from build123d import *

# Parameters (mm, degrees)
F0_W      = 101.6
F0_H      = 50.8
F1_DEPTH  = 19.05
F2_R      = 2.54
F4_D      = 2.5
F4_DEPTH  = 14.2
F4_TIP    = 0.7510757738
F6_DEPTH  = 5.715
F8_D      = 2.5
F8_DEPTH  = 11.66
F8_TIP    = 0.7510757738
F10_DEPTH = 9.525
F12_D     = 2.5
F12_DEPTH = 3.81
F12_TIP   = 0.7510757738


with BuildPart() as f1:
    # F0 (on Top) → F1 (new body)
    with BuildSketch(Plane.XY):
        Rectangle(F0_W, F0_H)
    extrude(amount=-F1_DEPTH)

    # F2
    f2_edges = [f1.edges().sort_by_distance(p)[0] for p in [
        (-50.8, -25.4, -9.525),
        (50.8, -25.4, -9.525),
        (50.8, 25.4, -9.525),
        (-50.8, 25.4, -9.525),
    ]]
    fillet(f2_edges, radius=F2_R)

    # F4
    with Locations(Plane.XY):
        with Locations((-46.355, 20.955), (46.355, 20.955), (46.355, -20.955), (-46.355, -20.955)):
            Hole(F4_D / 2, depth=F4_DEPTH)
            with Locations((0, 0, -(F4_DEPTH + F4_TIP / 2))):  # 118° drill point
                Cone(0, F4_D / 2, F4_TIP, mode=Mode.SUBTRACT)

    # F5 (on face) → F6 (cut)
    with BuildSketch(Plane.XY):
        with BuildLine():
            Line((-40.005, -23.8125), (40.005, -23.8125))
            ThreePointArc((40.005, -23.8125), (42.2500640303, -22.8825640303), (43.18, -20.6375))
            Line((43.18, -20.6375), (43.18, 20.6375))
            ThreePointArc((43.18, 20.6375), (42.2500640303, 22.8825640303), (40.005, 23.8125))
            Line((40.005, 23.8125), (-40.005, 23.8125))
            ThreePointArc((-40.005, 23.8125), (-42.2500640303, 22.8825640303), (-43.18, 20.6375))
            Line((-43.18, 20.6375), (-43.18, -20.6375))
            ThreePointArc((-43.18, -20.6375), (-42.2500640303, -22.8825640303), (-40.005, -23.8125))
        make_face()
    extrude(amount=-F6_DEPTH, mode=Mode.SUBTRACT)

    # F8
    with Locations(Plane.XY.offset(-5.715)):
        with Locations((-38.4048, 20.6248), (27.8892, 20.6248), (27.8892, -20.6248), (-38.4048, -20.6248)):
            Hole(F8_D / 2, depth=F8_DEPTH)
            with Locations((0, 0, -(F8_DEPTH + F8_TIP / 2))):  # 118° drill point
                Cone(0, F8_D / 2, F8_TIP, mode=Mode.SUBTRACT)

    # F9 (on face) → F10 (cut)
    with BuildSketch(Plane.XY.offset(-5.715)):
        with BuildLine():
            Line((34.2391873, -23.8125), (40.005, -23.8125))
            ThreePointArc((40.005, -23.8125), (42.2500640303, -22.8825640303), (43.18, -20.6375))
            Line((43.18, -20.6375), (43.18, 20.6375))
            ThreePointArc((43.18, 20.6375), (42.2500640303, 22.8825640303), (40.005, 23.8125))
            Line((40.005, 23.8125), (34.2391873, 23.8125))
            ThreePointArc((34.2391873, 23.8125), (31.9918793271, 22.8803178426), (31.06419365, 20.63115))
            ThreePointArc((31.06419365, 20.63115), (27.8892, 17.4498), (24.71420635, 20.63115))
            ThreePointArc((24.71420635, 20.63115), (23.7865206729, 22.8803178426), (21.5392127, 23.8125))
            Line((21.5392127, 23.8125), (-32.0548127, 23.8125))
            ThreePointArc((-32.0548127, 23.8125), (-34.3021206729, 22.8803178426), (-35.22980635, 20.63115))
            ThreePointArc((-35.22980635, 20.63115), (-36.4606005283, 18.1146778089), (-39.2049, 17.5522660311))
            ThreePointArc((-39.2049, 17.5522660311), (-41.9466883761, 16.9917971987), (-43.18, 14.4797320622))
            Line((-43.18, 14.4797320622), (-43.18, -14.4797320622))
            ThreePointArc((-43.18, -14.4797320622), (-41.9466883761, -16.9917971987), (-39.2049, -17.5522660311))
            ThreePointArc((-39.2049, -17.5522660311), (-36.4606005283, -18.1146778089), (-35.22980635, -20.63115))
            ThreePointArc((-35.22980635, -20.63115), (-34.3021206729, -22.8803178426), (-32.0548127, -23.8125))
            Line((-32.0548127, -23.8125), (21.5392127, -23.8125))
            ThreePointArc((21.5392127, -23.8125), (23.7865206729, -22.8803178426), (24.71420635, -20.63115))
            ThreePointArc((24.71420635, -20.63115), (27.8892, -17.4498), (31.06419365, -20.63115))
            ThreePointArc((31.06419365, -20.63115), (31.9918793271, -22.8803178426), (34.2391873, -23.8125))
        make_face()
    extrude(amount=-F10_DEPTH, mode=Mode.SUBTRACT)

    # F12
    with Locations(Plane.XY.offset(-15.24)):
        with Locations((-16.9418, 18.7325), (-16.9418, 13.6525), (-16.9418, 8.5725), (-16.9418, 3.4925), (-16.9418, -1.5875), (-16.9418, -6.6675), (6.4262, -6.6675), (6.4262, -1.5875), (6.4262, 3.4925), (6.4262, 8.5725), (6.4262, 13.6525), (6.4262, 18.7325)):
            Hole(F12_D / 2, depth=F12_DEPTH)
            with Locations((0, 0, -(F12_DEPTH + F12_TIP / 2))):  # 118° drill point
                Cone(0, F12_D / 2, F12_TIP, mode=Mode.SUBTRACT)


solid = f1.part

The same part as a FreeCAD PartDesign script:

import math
import FreeCAD as App
import Part
import Sketcher

V = App.Vector
Q = App.Units.Quantity


def edges_at(feature, points):
    """Names of the edges that pass closest to the given points."""
    edges = feature.Shape.Edges
    near = lambda p: min(range(len(edges)), key=lambda i: edges[i].distToShape(Part.Vertex(*p))[0])
    return sorted({f"Edge{near(p) + 1}" for p in points})


def add_polygon(sketch, points):
    """Adds a closed chain of lines whose ends are joined by coincident constraints."""
    first, n = sketch.GeometryCount, len(points)
    for a, b in zip(points, points[1:] + points[:1]):
        sketch.addGeometry(Part.LineSegment(App.Vector(*a, 0), App.Vector(*b, 0)), False)
    for i in range(n):
        sketch.addConstraint(Sketcher.Constraint("Coincident", first + i, 2, first + (i + 1) % n, 1))

doc = App.newDocument("Part")
body = doc.addObject("PartDesign::Body", "Body")

# Sketch on XY plane
sketch1 = body.newObject("Sketcher::SketchObject", "Sketch")
sketch1.AttachmentSupport = (doc.getObject("XY_Plane"), [""])
sketch1.MapMode = "FlatFace"
add_polygon(sketch1, [(-50.8, 25.4), (-50.8, -25.4), (50.8, -25.4), (50.8, 25.4)])  # lines 0-3
sketch1.addConstraint(Sketcher.Constraint("Vertical", 0))
sketch1.addConstraint(Sketcher.Constraint("Horizontal", 1))
sketch1.addConstraint(Sketcher.Constraint("Vertical", 2))
sketch1.addConstraint(Sketcher.Constraint("Horizontal", 3))
sketch1.addConstraint(Sketcher.Constraint("Symmetric", 0, 2, 2, 2, -1, 1))
sketch1.addConstraint(Sketcher.Constraint("DistanceX", 1, 1, 1, 2, Q("4 in")))
sketch1.addConstraint(Sketcher.Constraint("DistanceY", 0, 2, 0, 1, Q("2 in")))
pad1 = body.newObject("PartDesign::Pad", "Pad")
pad1.Profile = sketch1
pad1.Length = Q("0.75 in")
pad1.Reversed = True
doc.recompute()

fillet = body.newObject("PartDesign::Fillet", "Fillet")
fillet.Base = (pad1, edges_at(pad1, [
    (-50.8, -25.4, -9.525),
    (50.8, -25.4, -9.525),
    (50.8, 25.4, -9.525),
    (-50.8, 25.4, -9.525),
]))
fillet.Radius = Q("0.1 in")

# Sketch on XY plane
sketch2 = body.newObject("Sketcher::SketchObject", "Sketch001")
sketch2.AttachmentSupport = (doc.getObject("XY_Plane"), [""])
sketch2.MapMode = "FlatFace"
sketch2.addGeometry(Part.Circle(V(-46.355, 20.955, 0), V(0, 0, 1), 1.25), False)
sketch2.addGeometry(Part.Circle(V(46.355, 20.955, 0), V(0, 0, 1), 1.25), False)
sketch2.addGeometry(Part.Circle(V(46.355, -20.955, 0), V(0, 0, 1), 1.25), False)
sketch2.addGeometry(Part.Circle(V(-46.355, -20.955, 0), V(0, 0, 1), 1.25), False)
sketch2.addConstraint(Sketcher.Constraint("Equal", 0, 1))
sketch2.addConstraint(Sketcher.Constraint("Equal", 1, 2))
sketch2.addConstraint(Sketcher.Constraint("Equal", 2, 3))
sketch2.addConstraint(Sketcher.Constraint("Symmetric", 0, 3, 2, 3, -1, 1))
sketch2.addConstraint(Sketcher.Constraint("Symmetric", 1, 3, 3, 3, -1, 1))
sketch2.addConstraint(Sketcher.Constraint("Symmetric", 0, 3, 1, 3, -2))
sketch2.addConstraint(Sketcher.Constraint("Diameter", 0, 2.5))
sketch2.addConstraint(Sketcher.Constraint("DistanceX", 0, 3, 1, 3, Q("3.65 in")))
sketch2.addConstraint(Sketcher.Constraint("DistanceY", 2, 3, 1, 3, Q("1.65 in")))
doc.recompute()
hole = body.newObject("PartDesign::Hole", "Hole")
hole.Profile = sketch2
hole.ThreadType = "None"
hole.Diameter = 2.5
hole.DepthType = "Dimension"
hole.Depth = 14.2
hole.DrillPoint = "Angled"
hole.DrillPointAngle = 118

# Sketch on XY plane
sketch3 = body.newObject("Sketcher::SketchObject", "Sketch002")
sketch3.AttachmentSupport = (doc.getObject("XY_Plane"), [""])
sketch3.MapMode = "FlatFace"
sketch3.addGeometry(Part.LineSegment(V(-40.005, -23.8125, 0), V(40.005, -23.8125, 0)), False)
sketch3.addGeometry(Part.ArcOfCircle(Part.Circle(V(40.005, -20.6375, 0), V(0, 0, 1), 3.175), math.radians(-90), math.radians(0)), False)
sketch3.addGeometry(Part.LineSegment(V(43.18, -20.6375, 0), V(43.18, 20.6375, 0)), False)
sketch3.addGeometry(Part.ArcOfCircle(Part.Circle(V(40.005, 20.6375, 0), V(0, 0, 1), 3.175), math.radians(0), math.radians(90)), False)
sketch3.addGeometry(Part.LineSegment(V(40.005, 23.8125, 0), V(-40.005, 23.8125, 0)), False)
sketch3.addGeometry(Part.ArcOfCircle(Part.Circle(V(-40.005, 20.6375, 0), V(0, 0, 1), 3.175), math.radians(90), math.radians(180)), False)
sketch3.addGeometry(Part.LineSegment(V(-43.18, 20.6375, 0), V(-43.18, -20.6375, 0)), False)
sketch3.addGeometry(Part.ArcOfCircle(Part.Circle(V(-40.005, -20.6375, 0), V(0, 0, 1), 3.175), math.radians(180), math.radians(270)), False)
sketch3.addConstraint(Sketcher.Constraint("Tangent", 0, 2, 1, 1))
sketch3.addConstraint(Sketcher.Constraint("Tangent", 1, 2, 2, 1))
sketch3.addConstraint(Sketcher.Constraint("Tangent", 2, 2, 3, 1))
sketch3.addConstraint(Sketcher.Constraint("Tangent", 3, 2, 4, 1))
sketch3.addConstraint(Sketcher.Constraint("Tangent", 4, 2, 5, 1))
sketch3.addConstraint(Sketcher.Constraint("Tangent", 5, 2, 6, 1))
sketch3.addConstraint(Sketcher.Constraint("Tangent", 6, 2, 7, 1))
sketch3.addConstraint(Sketcher.Constraint("Tangent", 7, 2, 0, 1))
sketch3.addConstraint(Sketcher.Constraint("Horizontal", 0))
sketch3.addConstraint(Sketcher.Constraint("Vertical", 2))
sketch3.addConstraint(Sketcher.Constraint("Horizontal", 4))
sketch3.addConstraint(Sketcher.Constraint("Vertical", 6))
sketch3.addConstraint(Sketcher.Constraint("Equal", 1, 3))
sketch3.addConstraint(Sketcher.Constraint("Equal", 3, 5))
sketch3.addConstraint(Sketcher.Constraint("Equal", 5, 7))
sketch3.addConstraint(Sketcher.Constraint("Symmetric", 1, 3, 5, 3, -1, 1))
sketch3.addConstraint(Sketcher.Constraint("Radius", 1, Q("0.125 in")))
sketch3.addConstraint(Sketcher.Constraint("DistanceX", 0, 1, 0, 2, Q("3.15 in")))
sketch3.addConstraint(Sketcher.Constraint("DistanceY", 2, 1, 2, 2, Q("1.625 in")))
pocket1 = body.newObject("PartDesign::Pocket", "Pocket")
pocket1.Profile = sketch3
pocket1.Length = Q("0.225 in")

# Sketch on XY plane
sketch4 = body.newObject("Sketcher::SketchObject", "Sketch003")
sketch4.AttachmentSupport = (doc.getObject("XY_Plane"), [""])
sketch4.MapMode = "FlatFace"
sketch4.AttachmentOffset = App.Placement(V(0, 0, -0.225 * 25.4), App.Rotation())
sketch4.addGeometry(Part.Circle(V(-38.4048, 20.6248, 0), V(0, 0, 1), 1.25), False)
sketch4.addGeometry(Part.Circle(V(27.8892, 20.6248, 0), V(0, 0, 1), 1.25), False)
sketch4.addGeometry(Part.Circle(V(27.8892, -20.6248, 0), V(0, 0, 1), 1.25), False)
sketch4.addGeometry(Part.Circle(V(-38.4048, -20.6248, 0), V(0, 0, 1), 1.25), False)
sketch4.addConstraint(Sketcher.Constraint("Equal", 0, 1))
sketch4.addConstraint(Sketcher.Constraint("Equal", 1, 2))
sketch4.addConstraint(Sketcher.Constraint("Equal", 2, 3))
sketch4.addConstraint(Sketcher.Constraint("Symmetric", 1, 3, 2, 3, -1))
sketch4.addConstraint(Sketcher.Constraint("Symmetric", 0, 3, 3, 3, -1))
sketch4.addConstraint(Sketcher.Constraint("Horizontal", 0, 3, 1, 3))
sketch4.addConstraint(Sketcher.Constraint("Diameter", 0, 2.5))
sketch4.addConstraint(Sketcher.Constraint("DistanceX", 0, 3, 1, 3, Q("2.61 in")))
sketch4.addConstraint(Sketcher.Constraint("DistanceX", 0, 3, -1, 1, Q("1.512 in")))
sketch4.addConstraint(Sketcher.Constraint("DistanceY", -1, 1, 0, 3, Q("0.812 in")))
doc.recompute()
hole2 = body.newObject("PartDesign::Hole", "Hole001")
hole2.Profile = sketch4
hole2.ThreadType = "None"
hole2.Diameter = 2.5
hole2.DepthType = "Dimension"
hole2.Depth = 11.66
hole2.DrillPoint = "Angled"
hole2.DrillPointAngle = 118

# Sketch on XY plane
sketch5 = body.newObject("Sketcher::SketchObject", "Sketch004")
sketch5.AttachmentSupport = (doc.getObject("XY_Plane"), [""])
sketch5.MapMode = "FlatFace"
sketch5.AttachmentOffset = App.Placement(V(0, 0, -0.225 * 25.4), App.Rotation())
sketch5.addGeometry(Part.LineSegment(V(34.239187, -23.8125, 0), V(40.005, -23.8125, 0)), False)
sketch5.addGeometry(Part.ArcOfCircle(Part.Circle(V(40.005, -20.6375, 0), V(0, 0, 1), 3.175), math.radians(-90), math.radians(0)), False)
sketch5.addGeometry(Part.LineSegment(V(43.18, -20.6375, 0), V(43.18, 20.6375, 0)), False)
sketch5.addGeometry(Part.ArcOfCircle(Part.Circle(V(40.005, 20.6375, 0), V(0, 0, 1), 3.175), math.radians(0), math.radians(90)), False)
sketch5.addGeometry(Part.LineSegment(V(40.005, 23.8125, 0), V(34.239187, 23.8125, 0)), False)
sketch5.addGeometry(Part.ArcOfCircle(Part.Circle(V(34.239187, 20.6375, 0), V(0, 0, 1), 3.175), math.radians(90), math.radians(180.114592)), False)
sketch5.addGeometry(Part.ArcOfCircle(Part.Circle(V(27.8892, 20.6248, 0), V(0, 0, 1), 3.175), math.radians(179.885408), math.radians(360.114592)), False)
sketch5.addGeometry(Part.ArcOfCircle(Part.Circle(V(21.539213, 20.6375, 0), V(0, 0, 1), 3.175), math.radians(-0.114592), math.radians(90)), False)
sketch5.addGeometry(Part.LineSegment(V(21.539213, 23.8125, 0), V(-32.054813, 23.8125, 0)), False)
sketch5.addGeometry(Part.ArcOfCircle(Part.Circle(V(-32.054813, 20.6375, 0), V(0, 0, 1), 3.175), math.radians(90), math.radians(180.114592)), False)
sketch5.addGeometry(Part.ArcOfCircle(Part.Circle(V(-38.4048, 20.6248, 0), V(0, 0, 1), 3.175), math.radians(-104.595893), math.radians(0.114592)), False)
sketch5.addGeometry(Part.ArcOfCircle(Part.Circle(V(-40.005, 14.479732, 0), V(0, 0, 1), 3.175), math.radians(75.404107), math.radians(180)), False)
sketch5.addGeometry(Part.LineSegment(V(-43.18, 14.479732, 0), V(-43.18, -14.479732, 0)), False)
sketch5.addGeometry(Part.ArcOfCircle(Part.Circle(V(-40.005, -14.479732, 0), V(0, 0, 1), 3.175), math.radians(180), math.radians(284.595893)), False)
sketch5.addGeometry(Part.ArcOfCircle(Part.Circle(V(-38.4048, -20.6248, 0), V(0, 0, 1), 3.175), math.radians(-0.114592), math.radians(104.595893)), False)
sketch5.addGeometry(Part.ArcOfCircle(Part.Circle(V(-32.054813, -20.6375, 0), V(0, 0, 1), 3.175), math.radians(179.885408), math.radians(270)), False)
sketch5.addGeometry(Part.LineSegment(V(-32.054813, -23.8125, 0), V(21.539213, -23.8125, 0)), False)
sketch5.addGeometry(Part.ArcOfCircle(Part.Circle(V(21.539213, -20.6375, 0), V(0, 0, 1), 3.175), math.radians(-90), math.radians(0.114592)), False)
sketch5.addGeometry(Part.ArcOfCircle(Part.Circle(V(27.8892, -20.6248, 0), V(0, 0, 1), 3.175), math.radians(-0.114592), math.radians(180.114592)), False)
sketch5.addGeometry(Part.ArcOfCircle(Part.Circle(V(34.239187, -20.6375, 0), V(0, 0, 1), 3.175), math.radians(179.885408), math.radians(270)), False)
sketch5.addConstraint(Sketcher.Constraint("Tangent", 0, 2, 1, 1))
sketch5.addConstraint(Sketcher.Constraint("Tangent", 1, 2, 2, 1))
sketch5.addConstraint(Sketcher.Constraint("Tangent", 2, 2, 3, 1))
sketch5.addConstraint(Sketcher.Constraint("Tangent", 3, 2, 4, 1))
sketch5.addConstraint(Sketcher.Constraint("Tangent", 4, 2, 5, 1))
sketch5.addConstraint(Sketcher.Constraint("Tangent", 5, 2, 6, 2))
sketch5.addConstraint(Sketcher.Constraint("Tangent", 6, 1, 7, 1))
sketch5.addConstraint(Sketcher.Constraint("Tangent", 7, 2, 8, 1))
sketch5.addConstraint(Sketcher.Constraint("Tangent", 8, 2, 9, 1))
sketch5.addConstraint(Sketcher.Constraint("Tangent", 9, 2, 10, 2))
sketch5.addConstraint(Sketcher.Constraint("Tangent", 10, 1, 11, 1))
sketch5.addConstraint(Sketcher.Constraint("Tangent", 11, 2, 12, 1))
sketch5.addConstraint(Sketcher.Constraint("Tangent", 12, 2, 13, 1))
sketch5.addConstraint(Sketcher.Constraint("Tangent", 13, 2, 14, 2))
sketch5.addConstraint(Sketcher.Constraint("Tangent", 14, 1, 15, 1))
sketch5.addConstraint(Sketcher.Constraint("Tangent", 15, 2, 16, 1))
sketch5.addConstraint(Sketcher.Constraint("Tangent", 16, 2, 17, 1))
sketch5.addConstraint(Sketcher.Constraint("Tangent", 17, 2, 18, 2))
sketch5.addConstraint(Sketcher.Constraint("Tangent", 18, 1, 19, 1))
sketch5.addConstraint(Sketcher.Constraint("Tangent", 19, 2, 0, 1))
sketch5.addConstraint(Sketcher.Constraint("Horizontal", 0))
sketch5.addConstraint(Sketcher.Constraint("Vertical", 2))
sketch5.addConstraint(Sketcher.Constraint("Horizontal", 4))
sketch5.addConstraint(Sketcher.Constraint("Horizontal", 8))
sketch5.addConstraint(Sketcher.Constraint("Vertical", 12))
sketch5.addConstraint(Sketcher.Constraint("Horizontal", 16))
sketch5.addConstraint(Sketcher.Constraint("Equal", 1, 3))
sketch5.addConstraint(Sketcher.Constraint("Equal", 3, 5))
sketch5.addConstraint(Sketcher.Constraint("Equal", 5, 6))
sketch5.addConstraint(Sketcher.Constraint("Equal", 6, 7))
sketch5.addConstraint(Sketcher.Constraint("Equal", 7, 9))
sketch5.addConstraint(Sketcher.Constraint("Equal", 9, 10))
sketch5.addConstraint(Sketcher.Constraint("Equal", 10, 11))
sketch5.addConstraint(Sketcher.Constraint("Equal", 11, 13))
sketch5.addConstraint(Sketcher.Constraint("Equal", 13, 14))
sketch5.addConstraint(Sketcher.Constraint("Equal", 14, 15))
sketch5.addConstraint(Sketcher.Constraint("Equal", 15, 17))
sketch5.addConstraint(Sketcher.Constraint("Equal", 17, 18))
sketch5.addConstraint(Sketcher.Constraint("Equal", 18, 19))
sketch5.addConstraint(Sketcher.Constraint("Symmetric", 10, 3, 14, 3, -1))
sketch5.addConstraint(Sketcher.Constraint("Symmetric", 7, 3, 17, 3, -1))
sketch5.addConstraint(Sketcher.Constraint("Symmetric", 5, 3, 19, 3, -1))
sketch5.addConstraint(Sketcher.Constraint("Horizontal", 5, 3, 7, 3))
sketch5.addConstraint(Sketcher.Constraint("Horizontal", 6, 3, 10, 3))
sketch5.addConstraint(Sketcher.Constraint("Radius", 1, Q("0.125 in")))
sketch5.addConstraint(Sketcher.Constraint("DistanceX", -1, 1, 1, 2, Q("1.7 in")))
sketch5.addConstraint(Sketcher.Constraint("DistanceX", 11, 2, -1, 1, Q("1.7 in")))
sketch5.addConstraint(Sketcher.Constraint("DistanceY", 2, 1, 2, 2, Q("1.625 in")))
sketch5.addConstraint(Sketcher.Constraint("DistanceX", 9, 3, 5, 3, Q("2.61 in")))
sketch5.addConstraint(Sketcher.Constraint("DistanceX", -1, 1, 6, 3, Q("1.098 in")))
sketch5.addConstraint(Sketcher.Constraint("DistanceY", -1, 1, 6, 3, Q("0.812 in")))
pocket2 = body.newObject("PartDesign::Pocket", "Pocket001")
pocket2.Profile = sketch5
pocket2.Length = Q("0.375 in")

# Sketch on XY plane
sketch6 = body.newObject("Sketcher::SketchObject", "Sketch005")
sketch6.AttachmentSupport = (doc.getObject("XY_Plane"), [""])
sketch6.MapMode = "FlatFace"
sketch6.AttachmentOffset = App.Placement(V(0, 0, -0.6 * 25.4), App.Rotation())
sketch6.addGeometry(Part.Circle(V(-16.9418, 18.7325, 0), V(0, 0, 1), 1.25), False)
sketch6.addGeometry(Part.Circle(V(-16.9418, 13.6525, 0), V(0, 0, 1), 1.25), False)
sketch6.addGeometry(Part.Circle(V(-16.9418, 8.5725, 0), V(0, 0, 1), 1.25), False)
sketch6.addGeometry(Part.Circle(V(-16.9418, 3.4925, 0), V(0, 0, 1), 1.25), False)
sketch6.addGeometry(Part.Circle(V(-16.9418, -1.5875, 0), V(0, 0, 1), 1.25), False)
sketch6.addGeometry(Part.Circle(V(-16.9418, -6.6675, 0), V(0, 0, 1), 1.25), False)
sketch6.addGeometry(Part.Circle(V(6.4262, -6.6675, 0), V(0, 0, 1), 1.25), False)
sketch6.addGeometry(Part.Circle(V(6.4262, -1.5875, 0), V(0, 0, 1), 1.25), False)
sketch6.addGeometry(Part.Circle(V(6.4262, 3.4925, 0), V(0, 0, 1), 1.25), False)
sketch6.addGeometry(Part.Circle(V(6.4262, 8.5725, 0), V(0, 0, 1), 1.25), False)
sketch6.addGeometry(Part.Circle(V(6.4262, 13.6525, 0), V(0, 0, 1), 1.25), False)
sketch6.addGeometry(Part.Circle(V(6.4262, 18.7325, 0), V(0, 0, 1), 1.25), False)
sketch6.addConstraint(Sketcher.Constraint("Equal", 0, 1))
sketch6.addConstraint(Sketcher.Constraint("Equal", 1, 2))
sketch6.addConstraint(Sketcher.Constraint("Equal", 2, 3))
sketch6.addConstraint(Sketcher.Constraint("Equal", 3, 4))
sketch6.addConstraint(Sketcher.Constraint("Equal", 4, 5))
sketch6.addConstraint(Sketcher.Constraint("Equal", 5, 6))
sketch6.addConstraint(Sketcher.Constraint("Equal", 6, 7))
sketch6.addConstraint(Sketcher.Constraint("Equal", 7, 8))
sketch6.addConstraint(Sketcher.Constraint("Equal", 8, 9))
sketch6.addConstraint(Sketcher.Constraint("Equal", 9, 10))
sketch6.addConstraint(Sketcher.Constraint("Equal", 10, 11))
sketch6.addConstraint(Sketcher.Constraint("Horizontal", 5, 3, 6, 3))
sketch6.addConstraint(Sketcher.Constraint("Horizontal", 4, 3, 7, 3))
sketch6.addConstraint(Sketcher.Constraint("Horizontal", 3, 3, 8, 3))
sketch6.addConstraint(Sketcher.Constraint("Horizontal", 2, 3, 9, 3))
sketch6.addConstraint(Sketcher.Constraint("Horizontal", 1, 3, 10, 3))
sketch6.addConstraint(Sketcher.Constraint("Horizontal", 0, 3, 11, 3))
sketch6.addConstraint(Sketcher.Constraint("Vertical", 0, 3, 1, 3))
sketch6.addConstraint(Sketcher.Constraint("Vertical", 1, 3, 2, 3))
sketch6.addConstraint(Sketcher.Constraint("Vertical", 2, 3, 3, 3))
sketch6.addConstraint(Sketcher.Constraint("Vertical", 3, 3, 4, 3))
sketch6.addConstraint(Sketcher.Constraint("Vertical", 4, 3, 5, 3))
sketch6.addConstraint(Sketcher.Constraint("Vertical", 6, 3, 7, 3))
sketch6.addConstraint(Sketcher.Constraint("Vertical", 7, 3, 8, 3))
sketch6.addConstraint(Sketcher.Constraint("Vertical", 8, 3, 9, 3))
sketch6.addConstraint(Sketcher.Constraint("Vertical", 9, 3, 10, 3))
sketch6.addConstraint(Sketcher.Constraint("Vertical", 10, 3, 11, 3))
sketch6.addConstraint(Sketcher.Constraint("DistanceY", 5, 3, 0, 3, Q("1 in")))
sketch6.addConstraint(Sketcher.Constraint("DistanceY", 1, 3, 0, 3, Q("0.2 in")))
sketch6.addConstraint(Sketcher.Constraint("DistanceY", 2, 3, 1, 3, Q("0.2 in")))
sketch6.addConstraint(Sketcher.Constraint("DistanceY", 3, 3, 2, 3, Q("0.2 in")))
sketch6.addConstraint(Sketcher.Constraint("DistanceY", 4, 3, 3, 3, Q("0.2 in")))
sketch6.addConstraint(Sketcher.Constraint("Diameter", 0, 2.5))
sketch6.addConstraint(Sketcher.Constraint("DistanceX", 5, 3, 6, 3, Q("0.92 in")))
sketch6.addConstraint(Sketcher.Constraint("DistanceX", 0, 3, -1, 1, Q("0.667 in")))
sketch6.addConstraint(Sketcher.Constraint("DistanceY", 4, 3, -1, 1, Q("0.0625 in")))
doc.recompute()
hole3 = body.newObject("PartDesign::Hole", "Hole002")
hole3.Profile = sketch6
hole3.ThreadType = "None"
hole3.Diameter = 2.5
hole3.DepthType = "Dimension"
hole3.Depth = Q("0.15 in")
hole3.DrillPoint = "Angled"
hole3.DrillPointAngle = 118

doc.recompute()
